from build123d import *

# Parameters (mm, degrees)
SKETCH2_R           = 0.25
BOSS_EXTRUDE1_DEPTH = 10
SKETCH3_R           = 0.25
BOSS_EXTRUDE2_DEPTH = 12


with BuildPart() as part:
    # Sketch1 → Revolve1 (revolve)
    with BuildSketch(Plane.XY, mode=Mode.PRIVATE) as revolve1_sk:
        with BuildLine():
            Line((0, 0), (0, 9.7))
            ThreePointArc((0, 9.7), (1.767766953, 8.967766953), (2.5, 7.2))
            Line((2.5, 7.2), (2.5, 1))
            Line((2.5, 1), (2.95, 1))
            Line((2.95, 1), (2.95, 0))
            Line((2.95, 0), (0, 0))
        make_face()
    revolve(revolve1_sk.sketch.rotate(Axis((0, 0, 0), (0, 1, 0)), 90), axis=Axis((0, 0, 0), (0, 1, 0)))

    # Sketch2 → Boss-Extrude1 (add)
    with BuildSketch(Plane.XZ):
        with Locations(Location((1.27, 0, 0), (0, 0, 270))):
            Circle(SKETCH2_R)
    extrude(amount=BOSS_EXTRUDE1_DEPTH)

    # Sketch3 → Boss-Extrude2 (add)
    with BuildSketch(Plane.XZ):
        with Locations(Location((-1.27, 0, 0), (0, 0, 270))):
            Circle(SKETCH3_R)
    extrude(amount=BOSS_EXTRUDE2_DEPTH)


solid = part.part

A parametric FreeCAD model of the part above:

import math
import FreeCAD as App
import Part
import Sketcher
from FreeCAD import Vector
Q = App.Units.Quantity

doc = App.newDocument("Part")
body = doc.addObject("PartDesign::Body", "Body")

# Sketch on XY plane
sketch1 = body.newObject("Sketcher::SketchObject", "Sketch")
sketch1.AttachmentSupport = (doc.getObject("XY_Plane"), [""])
sketch1.MapMode = "FlatFace"
sketch1.addGeometry(Part.LineSegment(Vector(0, 9.7, 0), Vector(0, 0, 0)), False)
sketch1.addGeometry(Part.LineSegment(Vector(0, 0, 0), Vector(2.95, 0, 0)), False)
sketch1.addGeometry(Part.LineSegment(Vector(2.95, 0, 0), Vector(2.95, 1, 0)), False)
sketch1.addGeometry(Part.LineSegment(Vector(2.95, 1, 0), Vector(2.5, 1, 0)), False)
sketch1.addGeometry(Part.LineSegment(Vector(2.5, 1, 0), Vector(2.5, 7.2, 0)), False)
sketch1.addGeometry(Part.ArcOfCircle(Part.Circle(Vector(0, 7.2, 0), Vector(0, 0, 1), 2.5), math.radians(0), math.radians(90)), False)
sketch1.addConstraint(Sketcher.Constraint("Coincident", 0, 2, 1, 1))
sketch1.addConstraint(Sketcher.Constraint("Coincident", 1, 2, 2, 1))
sketch1.addConstraint(Sketcher.Constraint("Coincident", 2, 2, 3, 1))
sketch1.addConstraint(Sketcher.Constraint("Coincident", 3, 2, 4, 1))
sketch1.addConstraint(Sketcher.Constraint("Tangent", 4, 2, 5, 1))
sketch1.addConstraint(Sketcher.Constraint("Coincident", 5, 2, 0, 1))
sketch1.addConstraint(Sketcher.Constraint("Vertical", 0))
sketch1.addConstraint(Sketcher.Constraint("Horizontal", 1))
sketch1.addConstraint(Sketcher.Constraint("Vertical", 2))
sketch1.addConstraint(Sketcher.Constraint("Horizontal", 3))
sketch1.addConstraint(Sketcher.Constraint("Vertical", 4))
sketch1.addConstraint(Sketcher.Constraint("Coincident", 0, 2, -1, 1))
sketch1.addConstraint(Sketcher.Constraint("PointOnObject", 5, 3, -2))
sketch1.addConstraint(Sketcher.Constraint("Radius", 5, Q("2.5 mm")))
sketch1.addConstraint(Sketcher.Constraint("DistanceY", 2, 1, 2, 2, Q("1 mm")))
sketch1.addConstraint(Sketcher.Constraint("DistanceY", 0, 2, 0, 1, Q("9.7 mm")))
sketch1.addConstraint(Sketcher.Constraint("DistanceX", 1, 1, 1, 2, Q("2.95 mm")))
revolution = body.newObject("PartDesign::Revolution", "Revolution")
revolution.Profile = sketch1
revolution.ReferenceAxis = (sketch1, ["V_Axis"])
revolution.Angle = 360

# Sketch on XZ plane
sketch2 = body.newObject("Sketcher::SketchObject", "Sketch001")
sketch2.AttachmentSupport = (doc.getObject("XZ_Plane"), [""])
sketch2.MapMode = "FlatFace"
sketch2.addGeometry(Part.Circle(Vector(1.27, 0, 0), Vector(0, 0, 1), 0.25), False)
sketch2.addConstraint(Sketcher.Constraint("PointOnObject", 0, 3, -1))
sketch2.addConstraint(Sketcher.Constraint("Diameter", 0, Q("0.5 mm")))
sketch2.addConstraint(Sketcher.Constraint("DistanceX", -1, 1, 0, 3, Q("1.27 mm")))
pad1 = body.newObject("PartDesign::Pad", "Pad")
pad1.Profile = sketch2
pad1.Length = 10

# Sketch on XZ plane
sketch3 = body.newObject("Sketcher::SketchObject", "Sketch002")
sketch3.AttachmentSupport = (doc.getObject("XZ_Plane"), [""])
sketch3.MapMode = "FlatFace"
sketch3.addGeometry(Part.Circle(Vector(-1.27, 0, 0), Vector(0, 0, 1), 0.25), False)
sketch3.addConstraint(Sketcher.Constraint("PointOnObject", 0, 3, -1))
sketch3.addConstraint(Sketcher.Constraint("Diameter", 0, Q("0.5 mm")))
sketch3.addConstraint(Sketcher.Constraint("DistanceX", 0, 3, -1, 1, Q("1.27 mm")))
pad2 = body.newObject("PartDesign::Pad", "Pad001")
pad2.Profile = sketch3
pad2.Length = 12

doc.recompute()
